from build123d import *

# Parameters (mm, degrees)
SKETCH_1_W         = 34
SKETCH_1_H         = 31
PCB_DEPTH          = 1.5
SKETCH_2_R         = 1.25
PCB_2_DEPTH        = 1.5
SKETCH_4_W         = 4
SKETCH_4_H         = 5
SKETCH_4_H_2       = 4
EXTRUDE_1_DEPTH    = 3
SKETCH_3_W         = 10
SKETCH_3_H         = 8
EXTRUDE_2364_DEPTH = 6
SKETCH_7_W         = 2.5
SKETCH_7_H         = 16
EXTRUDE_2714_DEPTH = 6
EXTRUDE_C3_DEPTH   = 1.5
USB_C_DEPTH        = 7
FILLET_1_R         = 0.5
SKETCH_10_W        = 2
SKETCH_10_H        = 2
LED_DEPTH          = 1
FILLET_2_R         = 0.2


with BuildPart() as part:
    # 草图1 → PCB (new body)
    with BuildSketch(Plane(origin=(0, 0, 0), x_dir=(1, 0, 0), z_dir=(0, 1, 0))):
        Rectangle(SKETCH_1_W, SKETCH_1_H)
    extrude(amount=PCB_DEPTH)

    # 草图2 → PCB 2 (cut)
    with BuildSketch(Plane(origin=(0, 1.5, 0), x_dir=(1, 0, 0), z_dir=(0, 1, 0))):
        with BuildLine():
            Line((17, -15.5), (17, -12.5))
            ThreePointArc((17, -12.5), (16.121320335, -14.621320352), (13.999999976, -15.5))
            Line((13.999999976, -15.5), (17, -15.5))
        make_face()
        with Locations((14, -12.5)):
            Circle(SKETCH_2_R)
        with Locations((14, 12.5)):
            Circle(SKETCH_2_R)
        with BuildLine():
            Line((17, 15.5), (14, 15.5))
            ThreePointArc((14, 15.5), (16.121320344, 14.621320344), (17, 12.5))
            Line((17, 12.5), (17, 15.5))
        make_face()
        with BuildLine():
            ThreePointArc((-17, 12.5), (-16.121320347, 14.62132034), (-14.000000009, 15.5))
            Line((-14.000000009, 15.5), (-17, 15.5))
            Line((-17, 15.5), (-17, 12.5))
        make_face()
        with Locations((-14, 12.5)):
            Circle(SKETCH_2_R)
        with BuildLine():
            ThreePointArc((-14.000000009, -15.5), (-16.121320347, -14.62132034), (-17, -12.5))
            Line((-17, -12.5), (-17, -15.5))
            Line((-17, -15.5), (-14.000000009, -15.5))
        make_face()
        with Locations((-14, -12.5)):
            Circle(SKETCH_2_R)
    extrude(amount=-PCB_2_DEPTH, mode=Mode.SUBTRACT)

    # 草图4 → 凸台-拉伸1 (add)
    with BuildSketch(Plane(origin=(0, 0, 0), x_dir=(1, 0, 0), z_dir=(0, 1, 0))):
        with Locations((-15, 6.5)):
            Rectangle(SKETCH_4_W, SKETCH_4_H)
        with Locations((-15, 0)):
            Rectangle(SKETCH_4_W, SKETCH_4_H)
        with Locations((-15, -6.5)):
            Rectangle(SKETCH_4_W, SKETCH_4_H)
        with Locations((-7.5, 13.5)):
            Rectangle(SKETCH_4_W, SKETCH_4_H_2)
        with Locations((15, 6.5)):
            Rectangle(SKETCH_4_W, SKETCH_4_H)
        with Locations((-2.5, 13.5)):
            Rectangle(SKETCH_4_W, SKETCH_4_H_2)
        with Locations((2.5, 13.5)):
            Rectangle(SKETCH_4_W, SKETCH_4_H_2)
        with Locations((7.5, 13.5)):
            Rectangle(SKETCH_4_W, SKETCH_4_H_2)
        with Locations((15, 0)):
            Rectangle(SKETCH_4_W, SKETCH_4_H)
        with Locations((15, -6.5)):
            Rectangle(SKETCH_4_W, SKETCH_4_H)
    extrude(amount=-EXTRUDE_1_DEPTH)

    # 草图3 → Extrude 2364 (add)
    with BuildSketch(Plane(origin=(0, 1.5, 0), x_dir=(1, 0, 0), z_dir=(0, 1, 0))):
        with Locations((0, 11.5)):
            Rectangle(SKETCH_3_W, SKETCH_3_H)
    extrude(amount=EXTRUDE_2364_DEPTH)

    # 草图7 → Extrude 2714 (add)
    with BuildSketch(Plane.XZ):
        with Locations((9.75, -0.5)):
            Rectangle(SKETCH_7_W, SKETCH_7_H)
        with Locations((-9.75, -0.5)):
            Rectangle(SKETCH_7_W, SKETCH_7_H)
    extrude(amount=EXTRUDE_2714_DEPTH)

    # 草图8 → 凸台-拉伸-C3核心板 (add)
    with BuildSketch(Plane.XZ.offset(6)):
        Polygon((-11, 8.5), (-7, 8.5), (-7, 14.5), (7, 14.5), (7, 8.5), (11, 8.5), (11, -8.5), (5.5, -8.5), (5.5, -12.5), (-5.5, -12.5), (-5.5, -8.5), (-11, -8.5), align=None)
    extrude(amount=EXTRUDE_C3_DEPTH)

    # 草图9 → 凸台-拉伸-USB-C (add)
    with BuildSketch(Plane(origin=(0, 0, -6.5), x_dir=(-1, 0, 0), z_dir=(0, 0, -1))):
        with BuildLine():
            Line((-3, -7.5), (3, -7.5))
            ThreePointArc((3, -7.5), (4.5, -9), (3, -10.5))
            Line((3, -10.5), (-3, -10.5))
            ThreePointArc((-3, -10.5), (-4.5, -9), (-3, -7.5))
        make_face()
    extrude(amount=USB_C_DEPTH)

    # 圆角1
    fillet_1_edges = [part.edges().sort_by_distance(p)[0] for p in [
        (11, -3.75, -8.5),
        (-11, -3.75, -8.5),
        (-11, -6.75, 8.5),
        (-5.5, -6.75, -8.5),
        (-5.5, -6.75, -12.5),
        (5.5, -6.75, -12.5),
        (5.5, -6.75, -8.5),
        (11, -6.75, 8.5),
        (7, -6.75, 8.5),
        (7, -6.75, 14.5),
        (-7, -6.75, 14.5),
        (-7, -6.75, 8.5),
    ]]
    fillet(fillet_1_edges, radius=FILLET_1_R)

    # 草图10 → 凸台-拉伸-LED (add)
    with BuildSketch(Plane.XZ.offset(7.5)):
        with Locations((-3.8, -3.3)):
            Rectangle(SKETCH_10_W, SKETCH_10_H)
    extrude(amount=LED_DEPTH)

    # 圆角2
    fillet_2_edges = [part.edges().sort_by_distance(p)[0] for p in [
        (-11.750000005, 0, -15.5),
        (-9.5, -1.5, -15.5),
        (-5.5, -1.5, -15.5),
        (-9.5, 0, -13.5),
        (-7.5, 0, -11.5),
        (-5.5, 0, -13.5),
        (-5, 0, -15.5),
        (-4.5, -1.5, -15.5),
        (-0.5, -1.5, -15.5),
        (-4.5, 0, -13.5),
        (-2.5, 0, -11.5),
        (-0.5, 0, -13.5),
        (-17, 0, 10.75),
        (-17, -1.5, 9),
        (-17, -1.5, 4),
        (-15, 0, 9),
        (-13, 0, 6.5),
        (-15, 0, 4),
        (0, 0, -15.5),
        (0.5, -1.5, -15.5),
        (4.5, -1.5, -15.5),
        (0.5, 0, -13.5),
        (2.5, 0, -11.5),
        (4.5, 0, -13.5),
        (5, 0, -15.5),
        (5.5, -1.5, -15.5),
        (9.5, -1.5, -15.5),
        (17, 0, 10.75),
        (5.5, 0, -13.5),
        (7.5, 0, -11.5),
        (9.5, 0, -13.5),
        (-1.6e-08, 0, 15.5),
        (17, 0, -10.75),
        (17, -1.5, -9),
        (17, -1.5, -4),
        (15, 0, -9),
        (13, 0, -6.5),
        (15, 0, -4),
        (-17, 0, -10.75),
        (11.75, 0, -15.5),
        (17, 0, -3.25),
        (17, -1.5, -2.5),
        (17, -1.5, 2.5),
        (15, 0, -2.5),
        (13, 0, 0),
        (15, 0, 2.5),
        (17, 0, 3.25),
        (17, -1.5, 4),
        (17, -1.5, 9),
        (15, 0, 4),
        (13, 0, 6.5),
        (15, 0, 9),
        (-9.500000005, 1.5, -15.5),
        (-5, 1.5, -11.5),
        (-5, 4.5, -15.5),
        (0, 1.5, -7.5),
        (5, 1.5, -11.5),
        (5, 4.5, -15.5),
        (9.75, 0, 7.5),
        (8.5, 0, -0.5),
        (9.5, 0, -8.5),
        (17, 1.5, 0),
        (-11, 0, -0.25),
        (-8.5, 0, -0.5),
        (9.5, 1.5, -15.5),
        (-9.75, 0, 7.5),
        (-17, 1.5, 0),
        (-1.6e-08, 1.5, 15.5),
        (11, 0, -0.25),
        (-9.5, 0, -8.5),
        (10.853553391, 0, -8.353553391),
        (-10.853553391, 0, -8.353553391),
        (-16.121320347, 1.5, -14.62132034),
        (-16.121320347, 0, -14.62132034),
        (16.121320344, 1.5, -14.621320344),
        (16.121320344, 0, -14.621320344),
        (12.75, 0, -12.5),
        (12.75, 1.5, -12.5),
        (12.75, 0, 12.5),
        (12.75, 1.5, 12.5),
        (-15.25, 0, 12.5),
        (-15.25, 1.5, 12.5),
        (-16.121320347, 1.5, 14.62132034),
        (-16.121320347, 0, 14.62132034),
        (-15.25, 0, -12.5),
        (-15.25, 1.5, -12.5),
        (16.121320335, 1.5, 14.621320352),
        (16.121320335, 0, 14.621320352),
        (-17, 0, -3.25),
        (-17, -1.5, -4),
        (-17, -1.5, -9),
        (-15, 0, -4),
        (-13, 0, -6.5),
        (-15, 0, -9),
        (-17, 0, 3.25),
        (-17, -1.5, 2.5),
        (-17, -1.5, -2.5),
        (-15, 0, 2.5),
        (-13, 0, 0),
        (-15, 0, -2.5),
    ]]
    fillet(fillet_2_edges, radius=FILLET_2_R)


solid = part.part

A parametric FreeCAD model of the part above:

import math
import FreeCAD as App
import Part
import Sketcher

V = App.Vector
Q = App.Units.Quantity


def edges_at(feature, points):
    """Names of the edges that pass closest to the given points."""
    edges = feature.Shape.Edges
    near = lambda p: min(range(len(edges)), key=lambda i: edges[i].distToShape(Part.Vertex(*p))[0])
    return sorted({f"Edge{near(p) + 1}" for p in points})


def add_polygon(sketch, points):
    """Adds a closed chain of lines whose ends are joined by coincident constraints."""
    first, n = sketch.GeometryCount, len(points)
    for a, b in zip(points, points[1:] + points[:1]):
        sketch.addGeometry(Part.LineSegment(App.Vector(*a, 0), App.Vector(*b, 0)), False)
    for i in range(n):
        sketch.addConstraint(Sketcher.Constraint("Coincident", first + i, 2, first + (i + 1) % n, 1))

doc = App.newDocument("Part")
body = doc.addObject("PartDesign::Body", "Body")

# Sketch on XZ plane
sketch1 = body.newObject("Sketcher::SketchObject", "Sketch")
sketch1.AttachmentSupport = (doc.getObject("XZ_Plane"), [""])
sketch1.MapMode = "FlatFace"
add_polygon(sketch1, [(-17, -16), (-17, 16), (17, 16), (17, -16)])  # lines 0-3
sketch1.addConstraint(Sketcher.Constraint("Vertical", 0))
sketch1.addConstraint(Sketcher.Constraint("Horizontal", 1))
sketch1.addConstraint(Sketcher.Constraint("Vertical", 2))
sketch1.addConstraint(Sketcher.Constraint("Horizontal", 3))
sketch1.addConstraint(Sketcher.Constraint("Symmetric", 0, 2, 2, 2, -1, 1))
sketch1.addConstraint(Sketcher.Constraint("DistanceX", 1, 1, 1, 2, Q("34 mm")))
sketch1.addConstraint(Sketcher.Constraint("DistanceY", 0, 1, 0, 2, Q("31 mm")))
pad1 = body.newObject("PartDesign::Pad", "Pad")
pad1.Profile = sketch1
pad1.Length = 1.5
pad1.Reversed = True

# Sketch on XZ plane
sketch2 = body.newObject("Sketcher::SketchObject", "Sketch001")
sketch2.AttachmentSupport = (doc.getObject("XZ_Plane"), [""])
sketch2.MapMode = "FlatFace"
sketch2.AttachmentOffset = App.Placement(V(0, 0, -1.5), App.Rotation())
sketch2.addGeometry(Part.LineSegment(V(17, 15.5, 0), V(17, 12.5, 0)), False)
sketch2.addGeometry(Part.ArcOfCircle(Part.Circle(V(14, 12.5, 0), V(0, 0, 1), 3), math.radians(0), math.radians(90)), False)
sketch2.addGeometry(Part.LineSegment(V(14, 15.5, 0), V(17, 15.5, 0)), False)
sketch2.addGeometry(Part.Circle(V(14, 12.5, 0), V(0, 0, 1), 1.2), False)
sketch2.addGeometry(Part.Circle(V(14, -12.5, 0), V(0, 0, 1), 1.2), False)
sketch2.addGeometry(Part.LineSegment(V(17, -15.5, 0), V(14, -15.5, 0)), False)
sketch2.addGeometry(Part.ArcOfCircle(Part.Circle(V(14, -12.5, 0), V(0, 0, 1), 3), math.radians(-90), math.radians(0)), False)
sketch2.addGeometry(Part.LineSegment(V(17, -12.5, 0), V(17, -15.5, 0)), False)
sketch2.addGeometry(Part.ArcOfCircle(Part.Circle(V(-14, -12.5, 0), V(0, 0, 1), 3), math.radians(180), math.radians(270)), False)
sketch2.addGeometry(Part.LineSegment(V(-14, -15.5, 0), V(-17, -15.5, 0)), False)
sketch2.addGeometry(Part.LineSegment(V(-17, -15.5, 0), V(-17, -12.5, 0)), False)
sketch2.addGeometry(Part.Circle(V(-14, -12.5, 0), V(0, 0, 1), 1.2), False)
sketch2.addGeometry(Part.ArcOfCircle(Part.Circle(V(-14, 12.5, 0), V(0, 0, 1), 3), math.radians(90), math.radians(180)), False)
sketch2.addGeometry(Part.LineSegment(V(-17, 12.5, 0), V(-17, 15.5, 0)), False)
sketch2.addGeometry(Part.LineSegment(V(-17, 15.5, 0), V(-14, 15.5, 0)), False)
sketch2.addGeometry(Part.Circle(V(-14, 12.5, 0), V(0, 0, 1), 1.2), False)
sketch2.addConstraint(Sketcher.Constraint("Tangent", 0, 2, 1, 1))
sketch2.addConstraint(Sketcher.Constraint("Tangent", 1, 2, 2, 1))
sketch2.addConstraint(Sketcher.Constraint("Coincident", 2, 2, 0, 1))
sketch2.addConstraint(Sketcher.Constraint("Tangent", 5, 2, 6, 1))
sketch2.addConstraint(Sketcher.Constraint("Tangent", 6, 2, 7, 1))
sketch2.addConstraint(Sketcher.Constraint("Coincident", 7, 2, 5, 1))
sketch2.addConstraint(Sketcher.Constraint("Tangent", 8, 2, 9, 1))
sketch2.addConstraint(Sketcher.Constraint("Coincident", 9, 2, 10, 1))
sketch2.addConstraint(Sketcher.Constraint("Tangent", 10, 2, 8, 1))
sketch2.addConstraint(Sketcher.Constraint("Tangent", 12, 2, 13, 1))
sketch2.addConstraint(Sketcher.Constraint("Coincident", 13, 2, 14, 1))
sketch2.addConstraint(Sketcher.Constraint("Tangent", 14, 2, 12, 1))
sketch2.addConstraint(Sketcher.Constraint("Vertical", 0))
sketch2.addConstraint(Sketcher.Constraint("Horizontal", 2))
sketch2.addConstraint(Sketcher.Constraint("Horizontal", 5))
sketch2.addConstraint(Sketcher.Constraint("Vertical", 7))
sketch2.addConstraint(Sketcher.Constraint("Horizontal", 9))
sketch2.addConstraint(Sketcher.Constraint("Vertical", 10))
sketch2.addConstraint(Sketcher.Constraint("Vertical", 13))
sketch2.addConstraint(Sketcher.Constraint("Horizontal", 14))
sketch2.addConstraint(Sketcher.Constraint("Coincident", 3, 3, 1, 3))
sketch2.addConstraint(Sketcher.Constraint("Coincident", 6, 3, 4, 3))
sketch2.addConstraint(Sketcher.Constraint("Coincident", 11, 3, 8, 3))
sketch2.addConstraint(Sketcher.Constraint("Coincident", 15, 3, 12, 3))
sketch2.addConstraint(Sketcher.Constraint("Equal", 3, 4))
sketch2.addConstraint(Sketcher.Constraint("Equal", 1, 6))
sketch2.addConstraint(Sketcher.Constraint("Equal", 6, 8))
sketch2.addConstraint(Sketcher.Constraint("Equal", 4, 11))
sketch2.addConstraint(Sketcher.Constraint("Equal", 8, 12))
sketch2.addConstraint(Sketcher.Constraint("Equal", 11, 15))
sketch2.addConstraint(Sketcher.Constraint("Symmetric", 1, 3, 8, 3, -1, 1))
sketch2.addConstraint(Sketcher.Constraint("Symmetric", 4, 3, 12, 3, -1, 1))
sketch2.addConstraint(Sketcher.Constraint("Symmetric", 4, 3, 8, 3, -2))
sketch2.addConstraint(Sketcher.Constraint("Radius", 1, Q("3 mm")))
sketch2.addConstraint(Sketcher.Constraint("Diameter", 3, Q("2.5 mm")))
sketch2.addConstraint(Sketcher.Constraint("DistanceX", -1, 1, 1, 3, Q("14 mm")))
sketch2.addConstraint(Sketcher.Constraint("DistanceY", 4, 3, 1, 3, Q("25 mm")))
pocket1 = body.newObject("PartDesign::Pocket", "Pocket")
pocket1.Profile = sketch2
pocket1.Length = 1.5
pocket1.Reversed = True

# Sketch on XZ plane
sketch3 = body.newObject("Sketcher::SketchObject", "Sketch002")
sketch3.AttachmentSupport = (doc.getObject("XZ_Plane"), [""])
sketch3.MapMode = "FlatFace"
add_polygon(sketch3, [(-17, -9), (-17, -4), (-13, -4), (-13, -9)])  # lines 0-3
add_polygon(sketch3, [(-17, -2.5), (-17, 2.5), (-13, 2.5), (-13, -2.5)])  # lines 4-7
add_polygon(sketch3, [(-17, 4), (-17, 9), (-13, 9), (-13, 4)])  # lines 8-11
add_polygon(sketch3, [(-9.5, -15.5), (-9.5, -11.5), (-5.5, -11.5), (-5.5, -15.5)])  # lines 12-15
add_polygon(sketch3, [(13, -9), (13, -4), (17, -4), (17, -9)])  # lines 16-19
add_polygon(sketch3, [(-4.5, -15.5), (-4.5, -11.5), (-0.5, -11.5), (-0.5, -15.5)])  # lines 20-23
add_polygon(sketch3, [(0.5, -15.5), (0.5, -11.5), (4.5, -11.5), (4.5, -15.5)])  # lines 24-27
add_polygon(sketch3, [(5.5, -15.5), (5.5, -11.5), (9.5, -11.5), (9.5, -15.5)])  # lines 28-31
add_polygon(sketch3, [(13, -2.5), (13, 2.5), (17, 2.5), (17, -2.5)])  # lines 32-35
add_polygon(sketch3, [(13, 4), (13, 9), (17, 9), (17, 4)])  # lines 36-39
sketch3.addConstraint(Sketcher.Constraint("Vertical", 0))
sketch3.addConstraint(Sketcher.Constraint("Horizontal", 1))
sketch3.addConstraint(Sketcher.Constraint("Vertical", 2))
sketch3.addConstraint(Sketcher.Constraint("Horizontal", 3))
sketch3.addConstraint(Sketcher.Constraint("Vertical", 4))
sketch3.addConstraint(Sketcher.Constraint("Horizontal", 5))
sketch3.addConstraint(Sketcher.Constraint("Vertical", 6))
sketch3.addConstraint(Sketcher.Constraint("Horizontal", 7))
sketch3.addConstraint(Sketcher.Constraint("Vertical", 8))
sketch3.addConstraint(Sketcher.Constraint("Horizontal", 9))
sketch3.addConstraint(Sketcher.Constraint("Vertical", 10))
sketch3.addConstraint(Sketcher.Constraint("Horizontal", 11))
sketch3.addConstraint(Sketcher.Constraint("Vertical", 12))
sketch3.addConstraint(Sketcher.Constraint("Horizontal", 13))
sketch3.addConstraint(Sketcher.Constraint("Vertical", 14))
sketch3.addConstraint(Sketcher.Constraint("Horizontal", 15))
sketch3.addConstraint(Sketcher.Constraint("Vertical", 16))
sketch3.addConstraint(Sketcher.Constraint("Horizontal", 17))
sketch3.addConstraint(Sketcher.Constraint("Vertical", 18))
sketch3.addConstraint(Sketcher.Constraint("Horizontal", 19))
sketch3.addConstraint(Sketcher.Constraint("Vertical", 20))
sketch3.addConstraint(Sketcher.Constraint("Horizontal", 21))
sketch3.addConstraint(Sketcher.Constraint("Vertical", 22))
sketch3.addConstraint(Sketcher.Constraint("Horizontal", 23))
sketch3.addConstraint(Sketcher.Constraint("Vertical", 24))
sketch3.addConstraint(Sketcher.Constraint("Horizontal", 25))
sketch3.addConstraint(Sketcher.Constraint("Vertical", 26))
sketch3.addConstraint(Sketcher.Constraint("Horizontal", 27))
sketch3.addConstraint(Sketcher.Constraint("Vertical", 28))
sketch3.addConstraint(Sketcher.Constraint("Horizontal", 29))
sketch3.addConstraint(Sketcher.Constraint("Vertical", 30))
sketch3.addConstraint(Sketcher.Constraint("Horizontal", 31))
sketch3.addConstraint(Sketcher.Constraint("Vertical", 32))
sketch3.addConstraint(Sketcher.Constraint("Horizontal", 33))
sketch3.addConstraint(Sketcher.Constraint("Vertical", 34))
sketch3.addConstraint(Sketcher.Constraint("Horizontal", 35))
sketch3.addConstraint(Sketcher.Constraint("Vertical", 36))
sketch3.addConstraint(Sketcher.Constraint("Horizontal", 37))
sketch3.addConstraint(Sketcher.Constraint("Vertical", 38))
sketch3.addConstraint(Sketcher.Constraint("Horizontal", 39))
sketch3.addConstraint(Sketcher.Constraint("Symmetric", 10, 2, 16, 2, -1, 1))
sketch3.addConstraint(Sketcher.Constraint("Symmetric", 8, 2, 18, 2, -1, 1))
sketch3.addConstraint(Sketcher.Constraint("Symmetric", 6, 2, 32, 2, -1, 1))
sketch3.addConstraint(Sketcher.Constraint("Symmetric", 4, 2, 34, 2, -1, 1))
sketch3.addConstraint(Sketcher.Constraint("Symmetric", 2, 2, 36, 2, -1, 1))
sketch3.addConstraint(Sketcher.Constraint("Symmetric", 0, 2, 38, 2, -1, 1))
sketch3.addConstraint(Sketcher.Constraint("Symmetric", 1, 2, 16, 2, -2))
sketch3.addConstraint(Sketcher.Constraint("Symmetric", 3, 2, 18, 2, -2))
sketch3.addConstraint(Sketcher.Constraint("Symmetric", 21, 2, 24, 2, -2))
sketch3.addConstraint(Sketcher.Constraint("Symmetric", 23, 2, 26, 2, -2))
sketch3.addConstraint(Sketcher.Constraint("Symmetric", 13, 2, 28, 2, -2))
sketch3.addConstraint(Sketcher.Constraint("Symmetric", 15, 2, 30, 2, -2))
sketch3.addConstraint(Sketcher.Constraint("Horizontal", 13, 2, 20, 2))
sketch3.addConstraint(Sketcher.Constraint("Horizontal", 15, 2, 22, 2))
sketch3.addConstraint(Sketcher.Constraint("Horizontal", 5, 2, 32, 2))
sketch3.addConstraint(Sketcher.Constraint("Vertical", 3, 2, 4, 2))
sketch3.addConstraint(Sketcher.Constraint("Vertical", 2, 2, 5, 2))
sketch3.addConstraint(Sketcher.Constraint("Equal", 11, 13))
sketch3.addConstraint(Sketcher.Constraint("Equal", 19, 21))
sketch3.addConstraint(Sketcher.Constraint("Equal", 2, 4))
sketch3.addConstraint(Sketcher.Constraint("Equal", 39, 12))
sketch3.addConstraint(Sketcher.Constraint("DistanceX", 1, 1, 1, 2, Q("4 mm")))
sketch3.addConstraint(Sketcher.Constraint("DistanceY", 0, 1, 0, 2, Q("5 mm")))
sketch3.addConstraint(Sketcher.Constraint("DistanceX", 0, 2, -1, 1, Q("17 mm")))
sketch3.addConstraint(Sketcher.Constraint("DistanceY", 0, 2, -1, 1, Q("4 mm")))
sketch3.addConstraint(Sketcher.Constraint("DistanceY", 12, 2, 6, 2, Q("9 mm")))
sketch3.addConstraint(Sketcher.Constraint("DistanceX", 13, 2, 20, 2, Q("1 mm")))
sketch3.addConstraint(Sketcher.Constraint("DistanceX", 21, 2, 24, 2, Q("1 mm")))
pad2 = body.newObject("PartDesign::Pad", "Pad001")
pad2.Profile = sketch3
pad2.Length = 3

# Sketch on XZ plane
sketch4 = body.newObject("Sketcher::SketchObject", "Sketch003")
sketch4.AttachmentSupport = (doc.getObject("XZ_Plane"), [""])
sketch4.MapMode = "FlatFace"
sketch4.AttachmentOffset = App.Placement(V(0, 0, -1.5), App.Rotation())
add_polygon(sketch4, [(-5, -16), (-5, -8), (5, -8), (5, -16)])  # lines 0-3
sketch4.addConstraint(Sketcher.Constraint("Vertical", 0))
sketch4.addConstraint(Sketcher.Constraint("Horizontal", 1))
sketch4.addConstraint(Sketcher.Constraint("Vertical", 2))
sketch4.addConstraint(Sketcher.Constraint("Horizontal", 3))
sketch4.addConstraint(Sketcher.Constraint("DistanceX", 1, 1, 1, 2, Q("10 mm")))
sketch4.addConstraint(Sketcher.Constraint("DistanceY", 0, 1, 0, 2, Q("8 mm")))
sketch4.addConstraint(Sketcher.Constraint("DistanceX", 0, 2, -1, 1, Q("5 mm")))
sketch4.addConstraint(Sketcher.Constraint("DistanceY", 0, 2, -1, 1, Q("7.5 mm")))
pad3 = body.newObject("PartDesign::Pad", "Pad002")
pad3.Profile = sketch4
pad3.Length = 6
pad3.Reversed = True

# Sketch on XZ plane
sketch5 = body.newObject("Sketcher::SketchObject", "Sketch004")
sketch5.AttachmentSupport = (doc.getObject("XZ_Plane"), [""])
sketch5.MapMode = "FlatFace"
add_polygon(sketch5, [(8.5, 7.5), (8.5, -8.5), (11, -8.5), (11, 7.5)])  # lines 0-3
add_polygon(sketch5, [(-11, 7.5), (-11, -8.5), (-8.5, -8.5), (-8.5, 7.5)])  # lines 4-7
sketch5.addConstraint(Sketcher.Constraint("Vertical", 0))
sketch5.addConstraint(Sketcher.Constraint("Horizontal", 1))
sketch5.addConstraint(Sketcher.Constraint("Vertical", 2))
sketch5.addConstraint(Sketcher.Constraint("Horizontal", 3))
sketch5.addConstraint(Sketcher.Constraint("Vertical", 4))
sketch5.addConstraint(Sketcher.Constraint("Horizontal", 5))
sketch5.addConstraint(Sketcher.Constraint("Vertical", 6))
sketch5.addConstraint(Sketcher.Constraint("Horizontal", 7))
sketch5.addConstraint(Sketcher.Constraint("Symmetric", 1, 2, 4, 2, -2))
sketch5.addConstraint(Sketcher.Constraint("Symmetric", 3, 2, 6, 2, -2))
sketch5.addConstraint(Sketcher.Constraint("DistanceY", 0, 2, 0, 1, Q("16 mm")))
sketch5.addConstraint(Sketcher.Constraint("DistanceX", 1, 1, 1, 2, Q("2.5 mm")))
sketch5.addConstraint(Sketcher.Constraint("DistanceX", -1, 1, 1, 2, Q("11 mm")))
sketch5.addConstraint(Sketcher.Constraint("DistanceY", 0, 2, -1, 1, Q("8.5 mm")))
pad4 = body.newObject("PartDesign::Pad", "Pad003")
pad4.Profile = sketch5
pad4.Length = 6

# Sketch on XZ plane
sketch6 = body.newObject("Sketcher::SketchObject", "Sketch005")
sketch6.AttachmentSupport = (doc.getObject("XZ_Plane"), [""])
sketch6.MapMode = "FlatFace"
sketch6.AttachmentOffset = App.Placement(V(0, 0, 6), App.Rotation())
add_polygon(sketch6, [(-7, 8.5), (-11, 8.5), (-11, -8.5), (-5.5, -8.5), (-5.5, -12.5), (5.5, -12.5), (5.5, -8.5), (11, -8.5), (11, 8.5), (7, 8.5), (7, 14.5), (-7, 14.5)])  # lines 0-11
sketch6.addConstraint(Sketcher.Constraint("Horizontal", 0))
sketch6.addConstraint(Sketcher.Constraint("Vertical", 1))
sketch6.addConstraint(Sketcher.Constraint("Horizontal", 2))
sketch6.addConstraint(Sketcher.Constraint("Vertical", 3))
sketch6.addConstraint(Sketcher.Constraint("Horizontal", 4))
sketch6.addConstraint(Sketcher.Constraint("Vertical", 5))
sketch6.addConstraint(Sketcher.Constraint("Horizontal", 6))
sketch6.addConstraint(Sketcher.Constraint("Vertical", 7))
sketch6.addConstraint(Sketcher.Constraint("Horizontal", 8))
sketch6.addConstraint(Sketcher.Constraint("Vertical", 9))
sketch6.addConstraint(Sketcher.Constraint("Horizontal", 10))
sketch6.addConstraint(Sketcher.Constraint("Vertical", 11))
sketch6.addConstraint(Sketcher.Constraint("Symmetric", 0, 2, 6, 2, -1, 1))
sketch6.addConstraint(Sketcher.Constraint("Symmetric", 2, 2, 5, 2, -2))
sketch6.addConstraint(Sketcher.Constraint("Symmetric", 8, 2, 11, 2, -2))
sketch6.addConstraint(Sketcher.Constraint("Equal", 8, 3))
sketch6.addConstraint(Sketcher.Constraint("DistanceX", 0, 2, 0, 1, Q("4 mm")))
sketch6.addConstraint(Sketcher.Constraint("DistanceX", 4, 1, 4, 2, Q("11 mm")))
sketch6.addConstraint(Sketcher.Constraint("DistanceX", 10, 2, 10, 1, Q("14 mm")))
sketch6.addConstraint(Sketcher.Constraint("DistanceY", 1, 2, 1, 1, Q("17 mm")))
sketch6.addConstraint(Sketcher.Constraint("DistanceY", 9, 1, 9, 2, Q("6 mm")))
pad5 = body.newObject("PartDesign::Pad", "Pad004")
pad5.Profile = sketch6
pad5.Length = 1.5

# Sketch on XY plane
sketch7 = body.newObject("Sketcher::SketchObject", "Sketch006")
sketch7.AttachmentSupport = (doc.getObject("XY_Plane"), [""])
sketch7.MapMode = "FlatFace"
sketch7.AttachmentOffset = App.Placement(V(0, 0, -6.5), App.Rotation())
sketch7.addGeometry(Part.LineSegment(V(-3, -7.5, 0), V(3, -7.5, 0)), False)
sketch7.addGeometry(Part.ArcOfCircle(Part.Circle(V(3, -9, 0), V(0, 0, 1), 1.5), math.radians(-90), math.radians(90)), False)
sketch7.addGeometry(Part.LineSegment(V(3, -10.5, 0), V(-3, -10.5, 0)), False)
sketch7.addGeometry(Part.ArcOfCircle(Part.Circle(V(-3, -9, 0), V(0, 0, 1), 1.5), math.radians(90), math.radians(270)), False)
sketch7.addConstraint(Sketcher.Constraint("Tangent", 0, 2, 1, 2))
sketch7.addConstraint(Sketcher.Constraint("Tangent", 1, 1, 2, 1))
sketch7.addConstraint(Sketcher.Constraint("Tangent", 2, 2, 3, 2))
sketch7.addConstraint(Sketcher.Constraint("Tangent", 3, 1, 0, 1))
sketch7.addConstraint(Sketcher.Constraint("Horizontal", 0))
sketch7.addConstraint(Sketcher.Constraint("Horizontal", 2))
sketch7.addConstraint(Sketcher.Constraint("Radius", 1, Q("1.5 mm")))
sketch7.addConstraint(Sketcher.Constraint("DistanceX", 0, 1, 0, 2, Q("6 mm")))
sketch7.addConstraint(Sketcher.Constraint("DistanceX", -1, 1, 1, 3, Q("3 mm")))
sketch7.addConstraint(Sketcher.Constraint("DistanceY", 1, 3, -1, 1, Q("9 mm")))
pad6 = body.newObject("PartDesign::Pad", "Pad005")
pad6.Profile = sketch7
pad6.Length = 7
pad6.Reversed = True
doc.recompute()

fillet = body.newObject("PartDesign::Fillet", "Fillet")
fillet.Base = (pad6, edges_at(pad6, [
    (11, -3.75, -8.5),
    (-11, -3.75, -8.5),
    (-11, -6.75, 8.5),
    (-5.5, -6.75, -8.5),
    (-5.5, -6.75, -12.5),
    (5.5, -6.75, -12.5),
    (5.5, -6.75, -8.5),
    (11, -6.75, 8.5),
    (7, -6.75, 8.5),
    (7, -6.75, 14.5),
    (-7, -6.75, 14.5),
    (-7, -6.75, 8.5),
]))
fillet.Radius = 0.5

# Sketch on XZ plane
sketch8 = body.newObject("Sketcher::SketchObject", "Sketch007")
sketch8.AttachmentSupport = (doc.getObject("XZ_Plane"), [""])
sketch8.MapMode = "FlatFace"
sketch8.AttachmentOffset = App.Placement(V(0, 0, 7.5), App.Rotation())
add_polygon(sketch8, [(-4.8, -2.3), (-4.8, -4.3), (-2.8, -4.3), (-2.8, -2.3)])  # lines 0-3
sketch8.addConstraint(Sketcher.Constraint("Vertical", 0))
sketch8.addConstraint(Sketcher.Constraint("Horizontal", 1))
sketch8.addConstraint(Sketcher.Constraint("Vertical", 2))
sketch8.addConstraint(Sketcher.Constraint("Horizontal", 3))
sketch8.addConstraint(Sketcher.Constraint("Equal", 3, 0))
sketch8.addConstraint(Sketcher.Constraint("DistanceX", 1, 1, 1, 2, Q("2 mm")))
sketch8.addConstraint(Sketcher.Constraint("DistanceX", 0, 2, -1, 1, Q("4.8 mm")))
sketch8.addConstraint(Sketcher.Constraint("DistanceY", 0, 2, -1, 1, Q("4.3 mm")))
pad7 = body.newObject("PartDesign::Pad", "Pad006")
pad7.Profile = sketch8
pad7.Length = 1
doc.recompute()

fillet2 = body.newObject("PartDesign::Fillet", "Fillet001")
fillet2.Base = (pad7, edges_at(pad7, [
    (-11.75, 0, -15.5),
    (-9.5, -1.5, -15.5),
    (-5.5, -1.5, -15.5),
    (-9.5, 0, -13.5),
    (-7.5, 0, -11.5),
    (-5.5, 0, -13.5),
    (-5, 0, -15.5),
    (-4.5, -1.5, -15.5),
    (-0.5, -1.5, -15.5),
    (-4.5, 0, -13.5),
    (-2.5, 0, -11.5),
    (-0.5, 0, -13.5),
    (-17, 0, 10.75),
    (-17, -1.5, 9),
    (-17, -1.5, 4),
    (-15, 0, 9),
    (-13, 0, 6.5),
    (-15, 0, 4),
    (0, 0, -15.5),
    (0.5, -1.5, -15.5),
    (4.5, -1.5, -15.5),
    (0.5, 0, -13.5),
    (2.5, 0, -11.5),
    (4.5, 0, -13.5),
    (5, 0, -15.5),
    (5.5, -1.5, -15.5),
    (9.5, -1.5, -15.5),
    (17, 0, 10.75),
    (5.5, 0, -13.5),
    (7.5, 0, -11.5),
    (9.5, 0, -13.5),
    (0, 0, 15.5),
    (17, 0, -10.75),
    (17, -1.5, -9),
    (17, -1.5, -4),
    (15, 0, -9),
    (13, 0, -6.5),
    (15, 0, -4),
    (-17, 0, -10.75),
    (11.75, 0, -15.5),
    (17, 0, -3.25),
    (17, -1.5, -2.5),
    (17, -1.5, 2.5),
    (15, 0, -2.5),
    (13, 0, 0),
    (15, 0, 2.5),
    (17, 0, 3.25),
    (17, -1.5, 4),
    (17, -1.5, 9),
    (15, 0, 4),
    (13, 0, 6.5),
    (15, 0, 9),
    (-9.5, 1.5, -15.5),
    (-5, 1.5, -11.5),
    (-5, 4.5, -15.5),
    (0, 1.5, -7.5),
    (5, 1.5, -11.5),
    (5, 4.5, -15.5),
    (9.75, 0, 7.5),
    (8.5, 0, -0.5),
    (9.5, 0, -8.5),
    (17, 1.5, 0),
    (-11, 0, -0.25),
    (-8.5, 0, -0.5),
    (9.5, 1.5, -15.5),
    (-9.75, 0, 7.5),
    (-17, 1.5, 0),
    (0, 1.5, 15.5),
    (11, 0, -0.25),
    (-9.5, 0, -8.5),
    (10.854, 0, -8.354),
    (-10.854, 0, -8.354),
    (-16.121, 1.5, -14.621),
    (-16.121, 0, -14.621),
    (16.121, 1.5, -14.621),
    (16.121, 0, -14.621),
    (12.75, 0, -12.5),
    (12.75, 1.5, -12.5),
    (12.75, 0, 12.5),
    (12.75, 1.5, 12.5),
    (-15.25, 0, 12.5),
    (-15.25, 1.5, 12.5),
    (-16.121, 1.5, 14.621),
    (-16.121, 0, 14.621),
    (-15.25, 0, -12.5),
    (-15.25, 1.5, -12.5),
    (16.121, 1.5, 14.621),
    (16.121, 0, 14.621),
    (-17, 0, -3.25),
    (-17, -1.5, -4),
    (-17, -1.5, -9),
    (-15, 0, -4),
    (-13, 0, -6.5),
    (-15, 0, -9),
    (-17, 0, 3.25),
    (-17, -1.5, 2.5),
    (-17, -1.5, -2.5),
    (-15, 0, 2.5),
    (-13, 0, 0),
    (-15, 0, -2.5),
]))
fillet2.Radius = 0.2

doc.recompute()
